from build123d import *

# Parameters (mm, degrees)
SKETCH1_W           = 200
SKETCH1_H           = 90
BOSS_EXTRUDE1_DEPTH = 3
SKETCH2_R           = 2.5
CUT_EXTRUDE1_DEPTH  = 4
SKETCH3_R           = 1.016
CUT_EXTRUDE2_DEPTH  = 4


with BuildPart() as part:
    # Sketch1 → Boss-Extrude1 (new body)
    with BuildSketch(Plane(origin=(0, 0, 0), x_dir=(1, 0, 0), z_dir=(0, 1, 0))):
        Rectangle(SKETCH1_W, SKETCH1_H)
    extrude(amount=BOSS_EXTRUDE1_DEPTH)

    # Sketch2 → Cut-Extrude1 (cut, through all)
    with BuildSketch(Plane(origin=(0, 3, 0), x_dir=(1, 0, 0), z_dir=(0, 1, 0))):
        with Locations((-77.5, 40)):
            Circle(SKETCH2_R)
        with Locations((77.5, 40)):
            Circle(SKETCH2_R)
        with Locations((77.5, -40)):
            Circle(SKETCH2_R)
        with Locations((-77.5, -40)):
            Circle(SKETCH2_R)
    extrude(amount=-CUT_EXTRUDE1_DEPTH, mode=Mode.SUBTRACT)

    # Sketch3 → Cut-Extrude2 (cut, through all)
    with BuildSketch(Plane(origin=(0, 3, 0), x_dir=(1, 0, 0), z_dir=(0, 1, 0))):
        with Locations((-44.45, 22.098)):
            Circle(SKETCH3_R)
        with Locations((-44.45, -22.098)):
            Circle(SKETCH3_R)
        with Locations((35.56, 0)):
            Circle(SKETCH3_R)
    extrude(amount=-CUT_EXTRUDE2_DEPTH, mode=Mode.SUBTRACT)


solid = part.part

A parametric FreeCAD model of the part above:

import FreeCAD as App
import Part
import Sketcher
Q = App.Units.Quantity


def add_polygon(sketch, points):
    """Adds a closed chain of lines whose ends are joined by coincident constraints."""
    first, n = sketch.GeometryCount, len(points)
    for a, b in zip(points, points[1:] + points[:1]):
        sketch.addGeometry(Part.LineSegment(App.Vector(*a, 0), App.Vector(*b, 0)), False)
    for i in range(n):
        sketch.addConstraint(Sketcher.Constraint("Coincident", first + i, 2, first + (i + 1) % n, 1))

doc = App.newDocument("Part")
body = doc.addObject("PartDesign::Body", "Body")

# Sketch on XZ plane
sketch1 = body.newObject("Sketcher::SketchObject", "Sketch")
sketch1.AttachmentSupport = (doc.getObject("XZ_Plane"), [""])
sketch1.MapMode = "FlatFace"
add_polygon(sketch1, [(-100, -45), (-100, 45), (100, 45), (100, -45)])  # lines 0-3
sketch1.addConstraint([
    Sketcher.Constraint("Vertical", 0),
    Sketcher.Constraint("Horizontal", 1),
    Sketcher.Constraint("Vertical", 2),
    Sketcher.Constraint("Horizontal", 3),
    Sketcher.Constraint("Symmetric", 0, 2, 2, 2, -1, 1),
    Sketcher.Constraint("DistanceX", 1, 1, 1, 2, Q("200 mm")),
    Sketcher.Constraint("DistanceY", 0, 1, 0, 2, Q("90 mm")),
])
pad1 = body.newObject("PartDesign::Pad", "Pad")
pad1.Profile = sketch1
pad1.Length = 3
pad1.Reversed = True

# Sketch on XZ plane
sketch2 = body.newObject("Sketcher::SketchObject", "Sketch001")
sketch2.AttachmentSupport = (doc.getObject("XZ_Plane"), [""])
sketch2.MapMode = "FlatFace"
sketch2.AttachmentOffset = App.Placement(App.Vector(0, 0, -3), App.Rotation())
sketch2.addGeometry([
    Part.Circle(App.Vector(-77.5, -40, 0), App.Vector(0, 0, 1), 2.5),
    Part.Circle(App.Vector(77.5, -40, 0), App.Vector(0, 0, 1), 2.5),
    Part.Circle(App.Vector(77.5, 40, 0), App.Vector(0, 0, 1), 2.5),
    Part.Circle(App.Vector(-77.5, 40, 0), App.Vector(0, 0, 1), 2.5),
], False)
sketch2.addConstraint([
    Sketcher.Constraint("Equal", 0, 1),
    Sketcher.Constraint("Equal", 1, 2),
    Sketcher.Constraint("Equal", 2, 3),
    Sketcher.Constraint("Symmetric", 0, 3, 2, 3, -1, 1),
    Sketcher.Constraint("Symmetric", 1, 3, 3, 3, -1, 1),
    Sketcher.Constraint("Symmetric", 0, 3, 1, 3, -2),
    Sketcher.Constraint("Diameter", 0, Q("5 mm")),
    Sketcher.Constraint("DistanceY", 0, 3, -1, 1, Q("40 mm")),
    Sketcher.Constraint("DistanceX", 0, 3, 1, 3, Q("155 mm")),
])
pocket1 = body.newObject("PartDesign::Pocket", "Pocket")
pocket1.Profile = sketch2
pocket1.Type = "ThroughAll"
pocket1.Reversed = True

# Sketch on XZ plane
sketch3 = body.newObject("Sketcher::SketchObject", "Sketch002")
sketch3.AttachmentSupport = (doc.getObject("XZ_Plane"), [""])
sketch3.MapMode = "FlatFace"
sketch3.AttachmentOffset = App.Placement(App.Vector(0, 0, -3), App.Rotation())
sketch3.addGeometry([
    Part.Circle(App.Vector(-44.45, -22.098, 0), App.Vector(0, 0, 1), 1.016),
    Part.Circle(App.Vector(-44.45, 22.098, 0), App.Vector(0, 0, 1), 1.016),
    Part.Circle(App.Vector(35.56, 0, 0), App.Vector(0, 0, 1), 1.016),
], False)
sketch3.addConstraint([
    Sketcher.Constraint("Equal", 0, 1),
    Sketcher.Constraint("Equal", 1, 2),
    Sketcher.Constraint("Symmetric", 0, 3, 1, 3, -1),
    Sketcher.Constraint("PointOnObject", 2, 3, -1),
    Sketcher.Constraint("Diameter", 0, Q("2.032 mm")),
    Sketcher.Constraint("DistanceX", 0, 3, -1, 1, Q("44.45 mm")),
    Sketcher.Constraint("DistanceX", -1, 1, 2, 3, Q("35.56 mm")),
    Sketcher.Constraint("DistanceY", 0, 3, -1, 1, Q("22.098 mm")),
])
pocket2 = body.newObject("PartDesign::Pocket", "Pocket001")
pocket2.Profile = sketch3
pocket2.Type = "ThroughAll"
pocket2.Reversed = True

doc.recompute()
